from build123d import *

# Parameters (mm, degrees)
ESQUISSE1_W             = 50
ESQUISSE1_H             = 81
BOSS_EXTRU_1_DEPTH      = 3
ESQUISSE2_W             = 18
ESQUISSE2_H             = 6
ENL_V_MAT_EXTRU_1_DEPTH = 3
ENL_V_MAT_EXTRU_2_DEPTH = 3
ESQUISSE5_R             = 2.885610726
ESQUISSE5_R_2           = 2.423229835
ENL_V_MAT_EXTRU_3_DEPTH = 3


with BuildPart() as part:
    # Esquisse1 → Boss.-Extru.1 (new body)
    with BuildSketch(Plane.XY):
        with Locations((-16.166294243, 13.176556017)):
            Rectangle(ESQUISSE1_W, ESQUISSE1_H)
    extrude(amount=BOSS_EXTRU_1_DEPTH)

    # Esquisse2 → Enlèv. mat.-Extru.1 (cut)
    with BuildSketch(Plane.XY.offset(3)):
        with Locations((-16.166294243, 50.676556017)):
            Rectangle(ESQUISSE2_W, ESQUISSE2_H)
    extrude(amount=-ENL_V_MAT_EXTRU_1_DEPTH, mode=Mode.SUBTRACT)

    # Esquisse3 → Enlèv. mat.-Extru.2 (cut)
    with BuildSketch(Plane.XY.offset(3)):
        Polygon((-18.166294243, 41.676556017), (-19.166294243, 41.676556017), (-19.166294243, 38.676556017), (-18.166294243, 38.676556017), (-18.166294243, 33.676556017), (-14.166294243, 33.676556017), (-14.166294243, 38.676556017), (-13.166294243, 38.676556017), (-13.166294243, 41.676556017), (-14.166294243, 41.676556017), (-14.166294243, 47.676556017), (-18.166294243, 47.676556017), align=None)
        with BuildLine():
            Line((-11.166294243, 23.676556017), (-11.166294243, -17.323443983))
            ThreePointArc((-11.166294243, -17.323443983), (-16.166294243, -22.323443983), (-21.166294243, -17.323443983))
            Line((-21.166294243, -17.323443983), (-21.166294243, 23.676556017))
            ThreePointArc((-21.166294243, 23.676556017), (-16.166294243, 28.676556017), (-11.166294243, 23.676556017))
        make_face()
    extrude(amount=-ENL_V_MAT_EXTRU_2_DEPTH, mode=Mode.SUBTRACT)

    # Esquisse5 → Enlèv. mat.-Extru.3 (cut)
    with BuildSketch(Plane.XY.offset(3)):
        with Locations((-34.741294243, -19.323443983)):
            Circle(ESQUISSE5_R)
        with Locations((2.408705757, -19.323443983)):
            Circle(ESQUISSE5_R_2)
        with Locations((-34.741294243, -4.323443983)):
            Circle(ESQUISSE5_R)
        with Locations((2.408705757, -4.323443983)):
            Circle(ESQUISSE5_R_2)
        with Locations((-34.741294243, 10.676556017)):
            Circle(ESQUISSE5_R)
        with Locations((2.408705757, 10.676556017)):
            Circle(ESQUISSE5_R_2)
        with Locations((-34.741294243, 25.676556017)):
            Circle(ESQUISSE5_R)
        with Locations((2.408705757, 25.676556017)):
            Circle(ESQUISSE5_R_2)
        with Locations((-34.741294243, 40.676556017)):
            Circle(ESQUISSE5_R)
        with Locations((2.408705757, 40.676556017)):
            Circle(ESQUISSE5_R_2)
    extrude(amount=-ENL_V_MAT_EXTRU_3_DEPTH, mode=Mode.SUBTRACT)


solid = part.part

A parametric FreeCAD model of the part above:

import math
import FreeCAD as App
import Part
import Sketcher

V = App.Vector


def add_polygon(sketch, points):
    """Adds a closed chain of lines whose ends are joined by coincident constraints."""
    first, n = sketch.GeometryCount, len(points)
    for a, b in zip(points, points[1:] + points[:1]):
        sketch.addGeometry(Part.LineSegment(App.Vector(*a, 0), App.Vector(*b, 0)), False)
    for i in range(n):
        sketch.addConstraint(Sketcher.Constraint("Coincident", first + i, 2, first + (i + 1) % n, 1))

doc = App.newDocument("Part")
body = doc.addObject("PartDesign::Body", "Body")

sketch1 = body.newObject("Sketcher::SketchObject", "Sketch")
sketch1.AttachmentSupport = (doc.getObject("XY_Plane"), [""])
sketch1.MapMode = "FlatFace"
add_polygon(sketch1, [(-41.166294, 53.676556), (-41.166294, -27.323444), (8.833706, -27.323444), (8.833706, 53.676556)])
sketch1.addConstraint([
    Sketcher.Constraint("Vertical", 0),
    Sketcher.Constraint("Horizontal", 1),
    Sketcher.Constraint("Vertical", 2),
    Sketcher.Constraint("Horizontal", 3),
    Sketcher.Constraint("DistanceX", 1, 1, 1, 2, 50.0),
    Sketcher.Constraint("DistanceY", 0, 2, 0, 1, 81.0),
    Sketcher.Constraint("DistanceX", 0, 2, -1, 1, 41.166294),
    Sketcher.Constraint("DistanceY", 0, 2, -1, 1, 27.323444),
])
pad1 = body.newObject("PartDesign::Pad", "Pad")
pad1.Profile = sketch1
pad1.Length = 3

sketch2 = body.newObject("Sketcher::SketchObject", "Sketch001")
sketch2.AttachmentSupport = (doc.getObject("XY_Plane"), [""])
sketch2.MapMode = "FlatFace"
sketch2.AttachmentOffset = App.Placement(V(0, 0, 3), App.Rotation())
add_polygon(sketch2, [(-25.166294, 53.676556), (-25.166294, 47.676556), (-7.166294, 47.676556), (-7.166294, 53.676556)])
sketch2.addConstraint([
    Sketcher.Constraint("Vertical", 0),
    Sketcher.Constraint("Horizontal", 1),
    Sketcher.Constraint("Vertical", 2),
    Sketcher.Constraint("Horizontal", 3),
    Sketcher.Constraint("DistanceX", 1, 1, 1, 2, 18.0),
    Sketcher.Constraint("DistanceY", 0, 2, 0, 1, 6.0),
    Sketcher.Constraint("DistanceX", 0, 2, -1, 1, 25.166294),
    Sketcher.Constraint("DistanceY", -1, 1, 0, 2, 47.676556),
])
pocket1 = body.newObject("PartDesign::Pocket", "Pocket")
pocket1.Profile = sketch2
pocket1.Length = 3

sketch3 = body.newObject("Sketcher::SketchObject", "Sketch002")
sketch3.AttachmentSupport = (doc.getObject("XY_Plane"), [""])
sketch3.MapMode = "FlatFace"
sketch3.AttachmentOffset = App.Placement(V(0, 0, 3), App.Rotation())
add_polygon(sketch3, [(-18.166294, 41.676556), (-19.166294, 41.676556), (-19.166294, 38.676556), (-18.166294, 38.676556), (-18.166294, 33.676556), (-14.166294, 33.676556), (-14.166294, 38.676556), (-13.166294, 38.676556), (-13.166294, 41.676556), (-14.166294, 41.676556), (-14.166294, 47.676556), (-18.166294, 47.676556)])
sketch3.addGeometry(Part.LineSegment(V(-11.166294, -17.323444, 0), V(-11.166294, 23.676556, 0)), False)
sketch3.addGeometry(Part.ArcOfCircle(Part.Circle(V(-16.166294, 23.676556, 0), V(0, 0, 1), 5), math.radians(0), math.radians(180)), False)
sketch3.addGeometry(Part.LineSegment(V(-21.166294, 23.676556, 0), V(-21.166294, -17.323444, 0)), False)
sketch3.addGeometry(Part.ArcOfCircle(Part.Circle(V(-16.166294, -17.323444, 0), V(0, 0, 1), 5), math.radians(180), math.radians(360)), False)
sketch3.addConstraint([
    Sketcher.Constraint("Tangent", 12, 2, 13, 1),
    Sketcher.Constraint("Tangent", 13, 2, 14, 1),
    Sketcher.Constraint("Tangent", 14, 2, 15, 1),
    Sketcher.Constraint("Tangent", 15, 2, 12, 1),
    Sketcher.Constraint("Horizontal", 0),
    Sketcher.Constraint("Vertical", 1),
    Sketcher.Constraint("Horizontal", 2),
    Sketcher.Constraint("Vertical", 3),
    Sketcher.Constraint("Horizontal", 4),
    Sketcher.Constraint("Vertical", 5),
    Sketcher.Constraint("Horizontal", 6),
    Sketcher.Constraint("Vertical", 7),
    Sketcher.Constraint("Horizontal", 8),
    Sketcher.Constraint("Vertical", 9),
    Sketcher.Constraint("Horizontal", 10),
    Sketcher.Constraint("Vertical", 11),
    Sketcher.Constraint("Vertical", 12),
    Sketcher.Constraint("Vertical", 14),
    Sketcher.Constraint("Horizontal", 2, 2, 5, 2),
    Sketcher.Constraint("Horizontal", 0, 2, 7, 2),
    Sketcher.Constraint("Vertical", 5, 2, 8, 2),
    Sketcher.Constraint("Vertical", 3, 2, 10, 2),
    Sketcher.Constraint("Equal", 2, 6),
    Sketcher.Constraint("Radius", 13, 5.0),
    Sketcher.Constraint("DistanceX", 0, 2, 0, 1, 1.0),
    Sketcher.Constraint("DistanceX", 4, 1, 4, 2, 4.0),
    Sketcher.Constraint("DistanceY", 1, 2, 1, 1, 3.0),
    Sketcher.Constraint("DistanceY", 3, 2, 3, 1, 5.0),
    Sketcher.Constraint("DistanceY", 9, 1, 9, 2, 6.0),
    Sketcher.Constraint("DistanceY", 12, 1, 12, 2, 41.0),
    Sketcher.Constraint("DistanceX", 0, 2, 13, 3, 3.0),
    Sketcher.Constraint("DistanceY", 13, 3, 0, 2, 18.0),
    Sketcher.Constraint("DistanceX", 13, 3, -1, 1, 16.166294),
    Sketcher.Constraint("DistanceY", -1, 1, 13, 3, 23.676556),
])
pocket2 = body.newObject("PartDesign::Pocket", "Pocket001")
pocket2.Profile = sketch3
pocket2.Length = 3

sketch4 = body.newObject("Sketcher::SketchObject", "Sketch003")
sketch4.AttachmentSupport = (doc.getObject("XY_Plane"), [""])
sketch4.MapMode = "FlatFace"
sketch4.AttachmentOffset = App.Placement(V(0, 0, 3), App.Rotation())
sketch4.addGeometry([
    Part.Circle(V(-34.741294, -19.323444, 0), V(0, 0, 1), 2.885611),
    Part.Circle(V(2.408706, -19.323444, 0), V(0, 0, 1), 2.42323),
    Part.Circle(V(-34.741294, -4.323444, 0), V(0, 0, 1), 2.885611),
    Part.Circle(V(2.408706, -4.323444, 0), V(0, 0, 1), 2.42323),
    Part.Circle(V(-34.741294, 10.676556, 0), V(0, 0, 1), 2.885611),
    Part.Circle(V(2.408706, 10.676556, 0), V(0, 0, 1), 2.42323),
    Part.Circle(V(-34.741294, 25.676556, 0), V(0, 0, 1), 2.885611),
    Part.Circle(V(2.408706, 25.676556, 0), V(0, 0, 1), 2.42323),
    Part.Circle(V(-34.741294, 40.676556, 0), V(0, 0, 1), 2.885611),
    Part.Circle(V(2.408706, 40.676556, 0), V(0, 0, 1), 2.42323),
], False)
sketch4.addConstraint([
    Sketcher.Constraint("Equal", 0, 2),
    Sketcher.Constraint("Equal", 1, 3),
    Sketcher.Constraint("Equal", 2, 4),
    Sketcher.Constraint("Equal", 3, 5),
    Sketcher.Constraint("Equal", 4, 6),
    Sketcher.Constraint("Equal", 5, 7),
    Sketcher.Constraint("Equal", 6, 8),
    Sketcher.Constraint("Equal", 7, 9),
    Sketcher.Constraint("Horizontal", 0, 3, 1, 3),
    Sketcher.Constraint("Horizontal", 2, 3, 3, 3),
    Sketcher.Constraint("Horizontal", 4, 3, 5, 3),
    Sketcher.Constraint("Horizontal", 6, 3, 7, 3),
    Sketcher.Constraint("Horizontal", 8, 3, 9, 3),
    Sketcher.Constraint("Vertical", 0, 3, 2, 3),
    Sketcher.Constraint("Vertical", 1, 3, 3, 3),
    Sketcher.Constraint("Vertical", 2, 3, 4, 3),
    Sketcher.Constraint("Vertical", 3, 3, 5, 3),
    Sketcher.Constraint("Vertical", 4, 3, 6, 3),
    Sketcher.Constraint("Vertical", 5, 3, 7, 3),
    Sketcher.Constraint("Vertical", 6, 3, 8, 3),
    Sketcher.Constraint("Vertical", 7, 3, 9, 3),
    Sketcher.Constraint("DistanceY", 0, 3, 2, 3, 15.0),
    Sketcher.Constraint("DistanceY", 2, 3, 4, 3, 15.0),
    Sketcher.Constraint("DistanceY", 4, 3, 6, 3, 15.0),
    Sketcher.Constraint("DistanceY", 6, 3, 8, 3, 15.0),
    Sketcher.Constraint("Diameter", 0, 5.771221),
    Sketcher.Constraint("Diameter", 1, 4.84646),
    Sketcher.Constraint("DistanceX", 0, 3, 1, 3, 37.15),
    Sketcher.Constraint("DistanceX", 0, 3, -1, 1, 34.741294),
    Sketcher.Constraint("DistanceY", 0, 3, -1, 1, 19.323444),
])
pocket3 = body.newObject("PartDesign::Pocket", "Pocket002")
pocket3.Profile = sketch4
pocket3.Length = 3

doc.recompute()
